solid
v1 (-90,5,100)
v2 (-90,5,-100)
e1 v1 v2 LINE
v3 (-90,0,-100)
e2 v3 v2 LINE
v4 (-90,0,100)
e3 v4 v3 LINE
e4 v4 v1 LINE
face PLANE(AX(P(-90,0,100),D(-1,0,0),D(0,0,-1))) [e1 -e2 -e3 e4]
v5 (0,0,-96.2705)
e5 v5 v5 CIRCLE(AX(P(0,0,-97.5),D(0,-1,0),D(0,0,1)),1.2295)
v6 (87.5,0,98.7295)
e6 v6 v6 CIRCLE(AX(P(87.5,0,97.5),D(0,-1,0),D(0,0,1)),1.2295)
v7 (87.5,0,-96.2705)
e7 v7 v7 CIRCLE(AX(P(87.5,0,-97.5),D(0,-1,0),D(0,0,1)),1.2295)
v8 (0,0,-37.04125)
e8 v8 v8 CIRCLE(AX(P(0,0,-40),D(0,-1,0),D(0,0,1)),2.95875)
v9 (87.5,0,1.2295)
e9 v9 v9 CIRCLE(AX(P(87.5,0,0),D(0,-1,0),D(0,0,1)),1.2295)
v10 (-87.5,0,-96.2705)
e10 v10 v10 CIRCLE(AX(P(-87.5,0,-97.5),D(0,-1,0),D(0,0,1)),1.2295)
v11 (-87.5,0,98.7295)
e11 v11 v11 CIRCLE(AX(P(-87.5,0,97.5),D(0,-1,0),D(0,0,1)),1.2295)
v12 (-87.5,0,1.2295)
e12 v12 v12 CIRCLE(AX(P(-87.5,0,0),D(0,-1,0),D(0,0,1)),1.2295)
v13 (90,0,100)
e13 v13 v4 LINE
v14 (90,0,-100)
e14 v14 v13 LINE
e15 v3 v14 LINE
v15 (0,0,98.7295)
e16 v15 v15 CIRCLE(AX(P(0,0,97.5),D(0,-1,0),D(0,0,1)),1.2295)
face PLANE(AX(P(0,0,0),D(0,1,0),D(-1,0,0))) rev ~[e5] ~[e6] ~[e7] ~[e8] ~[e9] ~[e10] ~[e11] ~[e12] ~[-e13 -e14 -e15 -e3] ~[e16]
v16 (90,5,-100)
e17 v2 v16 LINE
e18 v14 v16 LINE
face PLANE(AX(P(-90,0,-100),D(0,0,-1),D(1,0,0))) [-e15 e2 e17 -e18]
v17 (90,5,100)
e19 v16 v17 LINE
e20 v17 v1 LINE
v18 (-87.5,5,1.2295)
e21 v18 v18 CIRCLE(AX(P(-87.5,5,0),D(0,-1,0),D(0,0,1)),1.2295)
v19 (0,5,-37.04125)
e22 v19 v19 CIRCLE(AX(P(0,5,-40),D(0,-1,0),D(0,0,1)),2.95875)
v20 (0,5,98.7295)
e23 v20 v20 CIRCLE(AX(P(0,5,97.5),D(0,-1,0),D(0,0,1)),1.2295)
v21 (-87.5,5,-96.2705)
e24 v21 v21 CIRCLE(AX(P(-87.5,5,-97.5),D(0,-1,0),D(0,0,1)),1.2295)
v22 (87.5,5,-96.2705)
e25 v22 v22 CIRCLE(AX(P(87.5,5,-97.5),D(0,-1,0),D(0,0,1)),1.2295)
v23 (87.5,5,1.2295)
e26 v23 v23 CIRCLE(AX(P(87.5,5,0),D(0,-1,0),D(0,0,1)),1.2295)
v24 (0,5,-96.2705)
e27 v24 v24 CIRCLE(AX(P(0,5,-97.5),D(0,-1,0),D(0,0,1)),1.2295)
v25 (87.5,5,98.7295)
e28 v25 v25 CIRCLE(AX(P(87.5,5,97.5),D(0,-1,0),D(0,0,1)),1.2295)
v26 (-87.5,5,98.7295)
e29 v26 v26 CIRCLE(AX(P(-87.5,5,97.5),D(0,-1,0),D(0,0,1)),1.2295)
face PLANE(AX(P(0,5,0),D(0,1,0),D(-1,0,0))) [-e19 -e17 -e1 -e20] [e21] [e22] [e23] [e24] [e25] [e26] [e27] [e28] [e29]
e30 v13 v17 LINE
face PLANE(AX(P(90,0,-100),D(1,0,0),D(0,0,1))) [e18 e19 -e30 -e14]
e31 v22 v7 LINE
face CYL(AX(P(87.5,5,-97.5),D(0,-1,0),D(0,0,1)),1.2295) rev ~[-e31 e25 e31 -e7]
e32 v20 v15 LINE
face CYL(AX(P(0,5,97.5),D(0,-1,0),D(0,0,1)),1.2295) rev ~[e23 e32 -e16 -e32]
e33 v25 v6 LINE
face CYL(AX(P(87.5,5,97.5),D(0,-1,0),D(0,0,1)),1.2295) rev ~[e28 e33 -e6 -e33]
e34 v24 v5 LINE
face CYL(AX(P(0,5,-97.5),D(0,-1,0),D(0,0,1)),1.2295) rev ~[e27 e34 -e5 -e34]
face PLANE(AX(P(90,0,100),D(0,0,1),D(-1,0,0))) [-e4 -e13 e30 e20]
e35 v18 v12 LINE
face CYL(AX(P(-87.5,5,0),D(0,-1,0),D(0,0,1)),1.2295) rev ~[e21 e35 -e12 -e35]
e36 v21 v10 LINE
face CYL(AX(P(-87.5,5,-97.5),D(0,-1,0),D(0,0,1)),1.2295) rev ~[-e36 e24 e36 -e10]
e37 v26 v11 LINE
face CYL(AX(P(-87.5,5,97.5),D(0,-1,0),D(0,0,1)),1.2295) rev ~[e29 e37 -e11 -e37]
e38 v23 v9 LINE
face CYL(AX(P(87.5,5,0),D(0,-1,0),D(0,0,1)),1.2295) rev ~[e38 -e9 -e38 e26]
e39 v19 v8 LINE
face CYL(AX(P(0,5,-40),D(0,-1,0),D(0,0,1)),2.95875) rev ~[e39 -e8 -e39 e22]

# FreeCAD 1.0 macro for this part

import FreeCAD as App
import Part
import Sketcher
from FreeCAD import Vector

doc = App.newDocument("Part")
body = doc.addObject("PartDesign::Body", "Body")

# Sketch on XZ plane
sketch1 = body.newObject("Sketcher::SketchObject", "Sketch")
sketch1.AttachmentSupport = (doc.getObject("XZ_Plane"), [""])
sketch1.MapMode = "FlatFace"
sketch1.addGeometry(Part.LineSegment(Vector(-90, 100, 0), Vector(90, 100, 0)), False)
sketch1.addGeometry(Part.LineSegment(Vector(90, 100, 0), Vector(90, -100, 0)), False)
sketch1.addGeometry(Part.LineSegment(Vector(90, -100, 0), Vector(-90, -100, 0)), False)
sketch1.addGeometry(Part.LineSegment(Vector(-90, -100, 0), Vector(-90, 100, 0)), False)
sketch1.addConstraint(Sketcher.Constraint("Coincident", 0, 2, 1, 1))
sketch1.addConstraint(Sketcher.Constraint("Coincident", 1, 2, 2, 1))
sketch1.addConstraint(Sketcher.Constraint("Coincident", 2, 2, 3, 1))
sketch1.addConstraint(Sketcher.Constraint("Coincident", 3, 2, 0, 1))
sketch1.addConstraint(Sketcher.Constraint("Horizontal", 0))
sketch1.addConstraint(Sketcher.Constraint("Vertical", 1))
sketch1.addConstraint(Sketcher.Constraint("Horizontal", 2))
sketch1.addConstraint(Sketcher.Constraint("Vertical", 3))
sketch1.addConstraint(Sketcher.Constraint("Symmetric", 0, 2, 2, 2, -1, 1))
sketch1.addConstraint(Sketcher.Constraint("DistanceX", 0, 1, 0, 2, 180.0))
sketch1.addConstraint(Sketcher.Constraint("DistanceY", 1, 2, 1, 1, 200.0))
pad1 = body.newObject("PartDesign::Pad", "Pad")
pad1.Profile = sketch1
pad1.Length = 5
pad1.Reversed = True

# Sketch on XZ plane
sketch2 = body.newObject("Sketcher::SketchObject", "Sketch001")
sketch2.AttachmentSupport = (doc.getObject("XZ_Plane"), [""])
sketch2.MapMode = "FlatFace"
sketch2.AttachmentOffset = App.Placement(Vector(0, 0, -5), App.Rotation())
sketch2.addGeometry(Part.Circle(Vector(-87.5, 97.5, 0), Vector(0, 0, 1), 1.2), False)
sketch2.addGeometry(Part.Circle(Vector(87.5, 97.5, 0), Vector(0, 0, 1), 1.2), False)
sketch2.addGeometry(Part.Circle(Vector(-87.5, -97.5, 0), Vector(0, 0, 1), 1.2), False)
sketch2.addGeometry(Part.Circle(Vector(87.5, -97.5, 0), Vector(0, 0, 1), 1.2), False)
sketch2.addConstraint(Sketcher.Constraint("Equal", 0, 1))
sketch2.addConstraint(Sketcher.Constraint("Equal", 1, 2))
sketch2.addConstraint(Sketcher.Constraint("Equal", 2, 3))
sketch2.addConstraint(Sketcher.Constraint("Symmetric", 1, 3, 2, 3, -1, 1))
sketch2.addConstraint(Sketcher.Constraint("Symmetric", 0, 3, 3, 3, -1, 1))
sketch2.addConstraint(Sketcher.Constraint("Symmetric", 0, 3, 1, 3, -2))
sketch2.addConstraint(Sketcher.Constraint("Diameter", 0, 2.459))
sketch2.addConstraint(Sketcher.Constraint("DistanceX", 0, 3, 1, 3, 175.0))
sketch2.addConstraint(Sketcher.Constraint("DistanceY", 2, 3, 0, 3, 195.0))
doc.recompute()
hole = body.newObject("PartDesign::Hole", "Hole")
hole.Profile = sketch2
hole.ThreadType = "None"
hole.Diameter = 2.459
hole.DepthType = "ThroughAll"
hole.Reversed = True

# Sketch on XZ plane
sketch3 = body.newObject("Sketcher::SketchObject", "Sketch002")
sketch3.AttachmentSupport = (doc.getObject("XZ_Plane"), [""])
sketch3.MapMode = "FlatFace"
sketch3.AttachmentOffset = App.Placement(Vector(0, 0, -5), App.Rotation())
sketch3.addGeometry(Part.Circle(Vector(-87.5, 0, 0), Vector(0, 0, 1), 1.2), False)
sketch3.addGeometry(Part.Circle(Vector(0, -97.5, 0), Vector(0, 0, 1), 1.2), False)
sketch3.addGeometry(Part.Circle(Vector(87.5, 0, 0), Vector(0, 0, 1), 1.2), False)
sketch3.addGeometry(Part.Circle(Vector(0, 97.5, 0), Vector(0, 0, 1), 1.2), False)
sketch3.addConstraint(Sketcher.Constraint("Equal", 0, 1))
sketch3.addConstraint(Sketcher.Constraint("Equal", 1, 2))
sketch3.addConstraint(Sketcher.Constraint("Equal", 2, 3))
sketch3.addConstraint(Sketcher.Constraint("Symmetric", 0, 3, 2, 3, -1, 1))
sketch3.addConstraint(Sketcher.Constraint("Symmetric", 1, 3, 3, 3, -1, 1))
sketch3.addConstraint(Sketcher.Constraint("PointOnObject", 0, 3, -1))
sketch3.addConstraint(Sketcher.Constraint("PointOnObject", 1, 3, -2))
sketch3.addConstraint(Sketcher.Constraint("Diameter", 0, 2.459))
sketch3.addConstraint(Sketcher.Constraint("DistanceX", 0, 3, 2, 3, 175.0))
sketch3.addConstraint(Sketcher.Constraint("DistanceY", 1, 3, 3, 3, 195.0))
doc.recompute()
hole2 = body.newObject("PartDesign::Hole", "Hole001")
hole2.Profile = sketch3
hole2.ThreadType = "None"
hole2.Diameter = 2.459
hole2.DepthType = "ThroughAll"
hole2.Reversed = True

# Sketch on XZ plane
sketch4 = body.newObject("Sketcher::SketchObject", "Sketch003")
sketch4.AttachmentSupport = (doc.getObject("XZ_Plane"), [""])
sketch4.MapMode = "FlatFace"
sketch4.AttachmentOffset = App.Placement(Vector(0, 0, -5), App.Rotation())
sketch4.addGeometry(Part.Circle(Vector(0, -40, 0), Vector(0, 0, 1), 3), False)
sketch4.addConstraint(Sketcher.Constraint("PointOnObject", 0, 3, -2))
sketch4.addConstraint(Sketcher.Constraint("DistanceY", 0, 3, -1, 1, 40.0))
sketch4.addConstraint(Sketcher.Constraint("Diameter", 0, 5.9175))
doc.recompute()
hole3 = body.newObject("PartDesign::Hole", "Hole002")
hole3.Profile = sketch4
hole3.ThreadType = "None"
hole3.Diameter = 5.9175
hole3.DepthType = "ThroughAll"
hole3.Reversed = True

doc.recompute()
